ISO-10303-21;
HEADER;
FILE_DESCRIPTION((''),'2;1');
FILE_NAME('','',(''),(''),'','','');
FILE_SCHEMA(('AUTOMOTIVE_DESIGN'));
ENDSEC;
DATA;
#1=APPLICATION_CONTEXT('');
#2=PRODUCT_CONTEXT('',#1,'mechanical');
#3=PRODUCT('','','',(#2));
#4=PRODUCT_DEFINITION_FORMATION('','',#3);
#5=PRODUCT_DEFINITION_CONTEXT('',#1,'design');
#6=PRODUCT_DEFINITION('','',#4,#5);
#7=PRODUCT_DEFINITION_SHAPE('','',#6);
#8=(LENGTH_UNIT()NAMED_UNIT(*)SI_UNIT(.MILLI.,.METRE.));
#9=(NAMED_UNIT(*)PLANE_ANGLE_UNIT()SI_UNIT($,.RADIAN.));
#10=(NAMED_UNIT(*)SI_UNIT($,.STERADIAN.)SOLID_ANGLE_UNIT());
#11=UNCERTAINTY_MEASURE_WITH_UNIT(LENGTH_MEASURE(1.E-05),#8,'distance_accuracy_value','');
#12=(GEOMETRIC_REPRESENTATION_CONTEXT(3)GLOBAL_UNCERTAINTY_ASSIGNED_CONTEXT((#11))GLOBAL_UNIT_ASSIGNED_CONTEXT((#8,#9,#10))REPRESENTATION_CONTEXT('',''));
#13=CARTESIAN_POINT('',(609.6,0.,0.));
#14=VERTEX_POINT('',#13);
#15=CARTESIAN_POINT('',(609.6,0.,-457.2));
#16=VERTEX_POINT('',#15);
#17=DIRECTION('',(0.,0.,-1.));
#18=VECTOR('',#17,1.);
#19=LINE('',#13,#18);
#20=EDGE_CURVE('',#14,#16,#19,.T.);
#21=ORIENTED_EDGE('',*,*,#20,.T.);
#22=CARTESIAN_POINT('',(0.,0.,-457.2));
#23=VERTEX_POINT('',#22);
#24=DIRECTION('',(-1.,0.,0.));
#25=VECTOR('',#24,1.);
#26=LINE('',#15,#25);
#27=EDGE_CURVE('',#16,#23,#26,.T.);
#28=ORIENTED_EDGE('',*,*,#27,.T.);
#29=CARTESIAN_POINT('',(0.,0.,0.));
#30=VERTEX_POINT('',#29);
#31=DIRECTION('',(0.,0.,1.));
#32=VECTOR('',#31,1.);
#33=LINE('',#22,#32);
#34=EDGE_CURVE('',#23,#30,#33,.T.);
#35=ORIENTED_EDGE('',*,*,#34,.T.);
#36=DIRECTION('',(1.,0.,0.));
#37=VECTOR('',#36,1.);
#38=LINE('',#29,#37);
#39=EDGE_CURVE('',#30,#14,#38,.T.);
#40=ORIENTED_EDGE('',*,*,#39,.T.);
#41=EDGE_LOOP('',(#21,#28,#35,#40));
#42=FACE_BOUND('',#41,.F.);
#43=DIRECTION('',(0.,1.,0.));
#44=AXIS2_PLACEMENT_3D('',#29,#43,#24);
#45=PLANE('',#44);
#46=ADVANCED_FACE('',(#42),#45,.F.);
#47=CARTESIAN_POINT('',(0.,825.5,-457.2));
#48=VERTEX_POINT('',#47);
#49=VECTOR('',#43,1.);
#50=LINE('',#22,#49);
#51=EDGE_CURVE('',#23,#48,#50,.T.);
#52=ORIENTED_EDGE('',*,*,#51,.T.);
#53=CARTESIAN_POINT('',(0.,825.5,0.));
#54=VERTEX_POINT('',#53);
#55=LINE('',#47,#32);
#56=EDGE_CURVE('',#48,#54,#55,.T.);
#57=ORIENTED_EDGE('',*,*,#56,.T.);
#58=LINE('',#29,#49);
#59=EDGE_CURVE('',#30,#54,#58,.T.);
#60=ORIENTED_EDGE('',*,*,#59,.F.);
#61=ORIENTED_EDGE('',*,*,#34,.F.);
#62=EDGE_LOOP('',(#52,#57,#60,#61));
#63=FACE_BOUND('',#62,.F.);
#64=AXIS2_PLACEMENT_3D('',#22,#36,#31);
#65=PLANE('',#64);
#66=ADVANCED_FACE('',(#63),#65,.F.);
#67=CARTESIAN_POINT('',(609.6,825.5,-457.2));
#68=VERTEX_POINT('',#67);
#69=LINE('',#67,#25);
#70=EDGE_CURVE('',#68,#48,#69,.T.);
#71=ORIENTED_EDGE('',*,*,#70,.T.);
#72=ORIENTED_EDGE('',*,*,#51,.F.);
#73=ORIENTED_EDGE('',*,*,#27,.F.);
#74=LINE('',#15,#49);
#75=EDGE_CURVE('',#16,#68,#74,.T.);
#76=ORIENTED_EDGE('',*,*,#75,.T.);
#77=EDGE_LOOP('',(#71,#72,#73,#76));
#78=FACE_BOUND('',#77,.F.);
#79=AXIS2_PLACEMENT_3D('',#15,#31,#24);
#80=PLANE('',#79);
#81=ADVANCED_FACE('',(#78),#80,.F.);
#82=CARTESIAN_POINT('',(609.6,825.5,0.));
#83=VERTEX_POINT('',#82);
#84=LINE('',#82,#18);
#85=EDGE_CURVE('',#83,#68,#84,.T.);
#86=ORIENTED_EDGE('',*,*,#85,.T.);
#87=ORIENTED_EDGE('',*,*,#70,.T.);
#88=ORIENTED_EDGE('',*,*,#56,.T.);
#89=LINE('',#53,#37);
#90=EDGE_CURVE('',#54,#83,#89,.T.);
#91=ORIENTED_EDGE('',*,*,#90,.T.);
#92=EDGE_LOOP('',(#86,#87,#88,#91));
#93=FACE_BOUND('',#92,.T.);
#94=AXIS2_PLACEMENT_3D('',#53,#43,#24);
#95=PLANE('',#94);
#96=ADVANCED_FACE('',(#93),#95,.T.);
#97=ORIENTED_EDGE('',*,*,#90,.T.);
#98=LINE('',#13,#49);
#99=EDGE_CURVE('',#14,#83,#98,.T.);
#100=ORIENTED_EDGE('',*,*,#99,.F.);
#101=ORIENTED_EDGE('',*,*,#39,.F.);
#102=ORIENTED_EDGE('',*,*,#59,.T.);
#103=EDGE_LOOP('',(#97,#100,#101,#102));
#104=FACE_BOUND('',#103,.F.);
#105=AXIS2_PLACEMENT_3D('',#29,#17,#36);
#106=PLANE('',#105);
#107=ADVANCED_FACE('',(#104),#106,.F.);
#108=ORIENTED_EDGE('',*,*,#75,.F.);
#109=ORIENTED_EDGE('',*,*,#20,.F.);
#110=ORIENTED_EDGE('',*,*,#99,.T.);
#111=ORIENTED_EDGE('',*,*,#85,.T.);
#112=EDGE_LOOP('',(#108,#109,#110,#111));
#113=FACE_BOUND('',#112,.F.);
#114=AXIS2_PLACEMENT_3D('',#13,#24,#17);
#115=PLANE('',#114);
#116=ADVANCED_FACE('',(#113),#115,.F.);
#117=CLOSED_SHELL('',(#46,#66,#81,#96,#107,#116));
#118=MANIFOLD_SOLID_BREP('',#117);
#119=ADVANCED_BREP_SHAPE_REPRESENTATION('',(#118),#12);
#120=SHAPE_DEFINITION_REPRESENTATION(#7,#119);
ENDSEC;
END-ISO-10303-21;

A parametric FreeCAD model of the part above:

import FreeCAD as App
import Part
import Sketcher
from FreeCAD import Vector
Q = App.Units.Quantity


def add_polygon(sketch, points):
    """Adds a closed chain of lines whose ends are joined by coincident constraints."""
    first, n = sketch.GeometryCount, len(points)
    for a, b in zip(points, points[1:] + points[:1]):
        sketch.addGeometry(Part.LineSegment(App.Vector(*a, 0), App.Vector(*b, 0)), False)
    for i in range(n):
        sketch.addConstraint(Sketcher.Constraint("Coincident", first + i, 2, first + (i + 1) % n, 1))

doc = App.newDocument("Part")
params = doc.addObject("Spreadsheet::Sheet", "Params")
for row, (alias, value) in enumerate([
    ("sketch1_width", "24 in"),
    ("sketch1_height", "18 in"),
    ("pad1_length", "32.5 in"),
], start=1):
    params.set(f"A{row}", alias)
    params.set(f"B{row}", "=" + value)
    params.setAlias(f"B{row}", alias)

body = doc.addObject("PartDesign::Body", "Body")

sketch1 = doc.addObject("Sketcher::SketchObject", "Sketch")
body.addObject(sketch1)
sketch1.AttachmentSupport = (doc.XZ_Plane, [""])
sketch1.MapMode = "FlatFace"
add_polygon(sketch1, [(0, -457), (0, 0), (610, 0), (610, -457)])
sketch1.addConstraint([
    Sketcher.Constraint("Vertical", 0),
    Sketcher.Constraint("Horizontal", 1),
    Sketcher.Constraint("Vertical", 2),
    Sketcher.Constraint("Horizontal", 3),
    Sketcher.Constraint("Coincident", 0, 2, -1, 1),
    Sketcher.Constraint("DistanceX", 1, 1, 1, 2, Q("24 in")),
    Sketcher.Constraint("DistanceY", 0, 1, 0, 2, Q("18 in")),
])
sketch1.setExpression("Constraints[9]", "Params.sketch1_width")
sketch1.setExpression("Constraints[10]", "Params.sketch1_height")
pad1 = doc.addObject("PartDesign::Pad", "Pad")
body.addObject(pad1)
pad1.Profile = sketch1
pad1.setExpression("Length", "Params.pad1_length")
pad1.Reversed = True

doc.recompute()
